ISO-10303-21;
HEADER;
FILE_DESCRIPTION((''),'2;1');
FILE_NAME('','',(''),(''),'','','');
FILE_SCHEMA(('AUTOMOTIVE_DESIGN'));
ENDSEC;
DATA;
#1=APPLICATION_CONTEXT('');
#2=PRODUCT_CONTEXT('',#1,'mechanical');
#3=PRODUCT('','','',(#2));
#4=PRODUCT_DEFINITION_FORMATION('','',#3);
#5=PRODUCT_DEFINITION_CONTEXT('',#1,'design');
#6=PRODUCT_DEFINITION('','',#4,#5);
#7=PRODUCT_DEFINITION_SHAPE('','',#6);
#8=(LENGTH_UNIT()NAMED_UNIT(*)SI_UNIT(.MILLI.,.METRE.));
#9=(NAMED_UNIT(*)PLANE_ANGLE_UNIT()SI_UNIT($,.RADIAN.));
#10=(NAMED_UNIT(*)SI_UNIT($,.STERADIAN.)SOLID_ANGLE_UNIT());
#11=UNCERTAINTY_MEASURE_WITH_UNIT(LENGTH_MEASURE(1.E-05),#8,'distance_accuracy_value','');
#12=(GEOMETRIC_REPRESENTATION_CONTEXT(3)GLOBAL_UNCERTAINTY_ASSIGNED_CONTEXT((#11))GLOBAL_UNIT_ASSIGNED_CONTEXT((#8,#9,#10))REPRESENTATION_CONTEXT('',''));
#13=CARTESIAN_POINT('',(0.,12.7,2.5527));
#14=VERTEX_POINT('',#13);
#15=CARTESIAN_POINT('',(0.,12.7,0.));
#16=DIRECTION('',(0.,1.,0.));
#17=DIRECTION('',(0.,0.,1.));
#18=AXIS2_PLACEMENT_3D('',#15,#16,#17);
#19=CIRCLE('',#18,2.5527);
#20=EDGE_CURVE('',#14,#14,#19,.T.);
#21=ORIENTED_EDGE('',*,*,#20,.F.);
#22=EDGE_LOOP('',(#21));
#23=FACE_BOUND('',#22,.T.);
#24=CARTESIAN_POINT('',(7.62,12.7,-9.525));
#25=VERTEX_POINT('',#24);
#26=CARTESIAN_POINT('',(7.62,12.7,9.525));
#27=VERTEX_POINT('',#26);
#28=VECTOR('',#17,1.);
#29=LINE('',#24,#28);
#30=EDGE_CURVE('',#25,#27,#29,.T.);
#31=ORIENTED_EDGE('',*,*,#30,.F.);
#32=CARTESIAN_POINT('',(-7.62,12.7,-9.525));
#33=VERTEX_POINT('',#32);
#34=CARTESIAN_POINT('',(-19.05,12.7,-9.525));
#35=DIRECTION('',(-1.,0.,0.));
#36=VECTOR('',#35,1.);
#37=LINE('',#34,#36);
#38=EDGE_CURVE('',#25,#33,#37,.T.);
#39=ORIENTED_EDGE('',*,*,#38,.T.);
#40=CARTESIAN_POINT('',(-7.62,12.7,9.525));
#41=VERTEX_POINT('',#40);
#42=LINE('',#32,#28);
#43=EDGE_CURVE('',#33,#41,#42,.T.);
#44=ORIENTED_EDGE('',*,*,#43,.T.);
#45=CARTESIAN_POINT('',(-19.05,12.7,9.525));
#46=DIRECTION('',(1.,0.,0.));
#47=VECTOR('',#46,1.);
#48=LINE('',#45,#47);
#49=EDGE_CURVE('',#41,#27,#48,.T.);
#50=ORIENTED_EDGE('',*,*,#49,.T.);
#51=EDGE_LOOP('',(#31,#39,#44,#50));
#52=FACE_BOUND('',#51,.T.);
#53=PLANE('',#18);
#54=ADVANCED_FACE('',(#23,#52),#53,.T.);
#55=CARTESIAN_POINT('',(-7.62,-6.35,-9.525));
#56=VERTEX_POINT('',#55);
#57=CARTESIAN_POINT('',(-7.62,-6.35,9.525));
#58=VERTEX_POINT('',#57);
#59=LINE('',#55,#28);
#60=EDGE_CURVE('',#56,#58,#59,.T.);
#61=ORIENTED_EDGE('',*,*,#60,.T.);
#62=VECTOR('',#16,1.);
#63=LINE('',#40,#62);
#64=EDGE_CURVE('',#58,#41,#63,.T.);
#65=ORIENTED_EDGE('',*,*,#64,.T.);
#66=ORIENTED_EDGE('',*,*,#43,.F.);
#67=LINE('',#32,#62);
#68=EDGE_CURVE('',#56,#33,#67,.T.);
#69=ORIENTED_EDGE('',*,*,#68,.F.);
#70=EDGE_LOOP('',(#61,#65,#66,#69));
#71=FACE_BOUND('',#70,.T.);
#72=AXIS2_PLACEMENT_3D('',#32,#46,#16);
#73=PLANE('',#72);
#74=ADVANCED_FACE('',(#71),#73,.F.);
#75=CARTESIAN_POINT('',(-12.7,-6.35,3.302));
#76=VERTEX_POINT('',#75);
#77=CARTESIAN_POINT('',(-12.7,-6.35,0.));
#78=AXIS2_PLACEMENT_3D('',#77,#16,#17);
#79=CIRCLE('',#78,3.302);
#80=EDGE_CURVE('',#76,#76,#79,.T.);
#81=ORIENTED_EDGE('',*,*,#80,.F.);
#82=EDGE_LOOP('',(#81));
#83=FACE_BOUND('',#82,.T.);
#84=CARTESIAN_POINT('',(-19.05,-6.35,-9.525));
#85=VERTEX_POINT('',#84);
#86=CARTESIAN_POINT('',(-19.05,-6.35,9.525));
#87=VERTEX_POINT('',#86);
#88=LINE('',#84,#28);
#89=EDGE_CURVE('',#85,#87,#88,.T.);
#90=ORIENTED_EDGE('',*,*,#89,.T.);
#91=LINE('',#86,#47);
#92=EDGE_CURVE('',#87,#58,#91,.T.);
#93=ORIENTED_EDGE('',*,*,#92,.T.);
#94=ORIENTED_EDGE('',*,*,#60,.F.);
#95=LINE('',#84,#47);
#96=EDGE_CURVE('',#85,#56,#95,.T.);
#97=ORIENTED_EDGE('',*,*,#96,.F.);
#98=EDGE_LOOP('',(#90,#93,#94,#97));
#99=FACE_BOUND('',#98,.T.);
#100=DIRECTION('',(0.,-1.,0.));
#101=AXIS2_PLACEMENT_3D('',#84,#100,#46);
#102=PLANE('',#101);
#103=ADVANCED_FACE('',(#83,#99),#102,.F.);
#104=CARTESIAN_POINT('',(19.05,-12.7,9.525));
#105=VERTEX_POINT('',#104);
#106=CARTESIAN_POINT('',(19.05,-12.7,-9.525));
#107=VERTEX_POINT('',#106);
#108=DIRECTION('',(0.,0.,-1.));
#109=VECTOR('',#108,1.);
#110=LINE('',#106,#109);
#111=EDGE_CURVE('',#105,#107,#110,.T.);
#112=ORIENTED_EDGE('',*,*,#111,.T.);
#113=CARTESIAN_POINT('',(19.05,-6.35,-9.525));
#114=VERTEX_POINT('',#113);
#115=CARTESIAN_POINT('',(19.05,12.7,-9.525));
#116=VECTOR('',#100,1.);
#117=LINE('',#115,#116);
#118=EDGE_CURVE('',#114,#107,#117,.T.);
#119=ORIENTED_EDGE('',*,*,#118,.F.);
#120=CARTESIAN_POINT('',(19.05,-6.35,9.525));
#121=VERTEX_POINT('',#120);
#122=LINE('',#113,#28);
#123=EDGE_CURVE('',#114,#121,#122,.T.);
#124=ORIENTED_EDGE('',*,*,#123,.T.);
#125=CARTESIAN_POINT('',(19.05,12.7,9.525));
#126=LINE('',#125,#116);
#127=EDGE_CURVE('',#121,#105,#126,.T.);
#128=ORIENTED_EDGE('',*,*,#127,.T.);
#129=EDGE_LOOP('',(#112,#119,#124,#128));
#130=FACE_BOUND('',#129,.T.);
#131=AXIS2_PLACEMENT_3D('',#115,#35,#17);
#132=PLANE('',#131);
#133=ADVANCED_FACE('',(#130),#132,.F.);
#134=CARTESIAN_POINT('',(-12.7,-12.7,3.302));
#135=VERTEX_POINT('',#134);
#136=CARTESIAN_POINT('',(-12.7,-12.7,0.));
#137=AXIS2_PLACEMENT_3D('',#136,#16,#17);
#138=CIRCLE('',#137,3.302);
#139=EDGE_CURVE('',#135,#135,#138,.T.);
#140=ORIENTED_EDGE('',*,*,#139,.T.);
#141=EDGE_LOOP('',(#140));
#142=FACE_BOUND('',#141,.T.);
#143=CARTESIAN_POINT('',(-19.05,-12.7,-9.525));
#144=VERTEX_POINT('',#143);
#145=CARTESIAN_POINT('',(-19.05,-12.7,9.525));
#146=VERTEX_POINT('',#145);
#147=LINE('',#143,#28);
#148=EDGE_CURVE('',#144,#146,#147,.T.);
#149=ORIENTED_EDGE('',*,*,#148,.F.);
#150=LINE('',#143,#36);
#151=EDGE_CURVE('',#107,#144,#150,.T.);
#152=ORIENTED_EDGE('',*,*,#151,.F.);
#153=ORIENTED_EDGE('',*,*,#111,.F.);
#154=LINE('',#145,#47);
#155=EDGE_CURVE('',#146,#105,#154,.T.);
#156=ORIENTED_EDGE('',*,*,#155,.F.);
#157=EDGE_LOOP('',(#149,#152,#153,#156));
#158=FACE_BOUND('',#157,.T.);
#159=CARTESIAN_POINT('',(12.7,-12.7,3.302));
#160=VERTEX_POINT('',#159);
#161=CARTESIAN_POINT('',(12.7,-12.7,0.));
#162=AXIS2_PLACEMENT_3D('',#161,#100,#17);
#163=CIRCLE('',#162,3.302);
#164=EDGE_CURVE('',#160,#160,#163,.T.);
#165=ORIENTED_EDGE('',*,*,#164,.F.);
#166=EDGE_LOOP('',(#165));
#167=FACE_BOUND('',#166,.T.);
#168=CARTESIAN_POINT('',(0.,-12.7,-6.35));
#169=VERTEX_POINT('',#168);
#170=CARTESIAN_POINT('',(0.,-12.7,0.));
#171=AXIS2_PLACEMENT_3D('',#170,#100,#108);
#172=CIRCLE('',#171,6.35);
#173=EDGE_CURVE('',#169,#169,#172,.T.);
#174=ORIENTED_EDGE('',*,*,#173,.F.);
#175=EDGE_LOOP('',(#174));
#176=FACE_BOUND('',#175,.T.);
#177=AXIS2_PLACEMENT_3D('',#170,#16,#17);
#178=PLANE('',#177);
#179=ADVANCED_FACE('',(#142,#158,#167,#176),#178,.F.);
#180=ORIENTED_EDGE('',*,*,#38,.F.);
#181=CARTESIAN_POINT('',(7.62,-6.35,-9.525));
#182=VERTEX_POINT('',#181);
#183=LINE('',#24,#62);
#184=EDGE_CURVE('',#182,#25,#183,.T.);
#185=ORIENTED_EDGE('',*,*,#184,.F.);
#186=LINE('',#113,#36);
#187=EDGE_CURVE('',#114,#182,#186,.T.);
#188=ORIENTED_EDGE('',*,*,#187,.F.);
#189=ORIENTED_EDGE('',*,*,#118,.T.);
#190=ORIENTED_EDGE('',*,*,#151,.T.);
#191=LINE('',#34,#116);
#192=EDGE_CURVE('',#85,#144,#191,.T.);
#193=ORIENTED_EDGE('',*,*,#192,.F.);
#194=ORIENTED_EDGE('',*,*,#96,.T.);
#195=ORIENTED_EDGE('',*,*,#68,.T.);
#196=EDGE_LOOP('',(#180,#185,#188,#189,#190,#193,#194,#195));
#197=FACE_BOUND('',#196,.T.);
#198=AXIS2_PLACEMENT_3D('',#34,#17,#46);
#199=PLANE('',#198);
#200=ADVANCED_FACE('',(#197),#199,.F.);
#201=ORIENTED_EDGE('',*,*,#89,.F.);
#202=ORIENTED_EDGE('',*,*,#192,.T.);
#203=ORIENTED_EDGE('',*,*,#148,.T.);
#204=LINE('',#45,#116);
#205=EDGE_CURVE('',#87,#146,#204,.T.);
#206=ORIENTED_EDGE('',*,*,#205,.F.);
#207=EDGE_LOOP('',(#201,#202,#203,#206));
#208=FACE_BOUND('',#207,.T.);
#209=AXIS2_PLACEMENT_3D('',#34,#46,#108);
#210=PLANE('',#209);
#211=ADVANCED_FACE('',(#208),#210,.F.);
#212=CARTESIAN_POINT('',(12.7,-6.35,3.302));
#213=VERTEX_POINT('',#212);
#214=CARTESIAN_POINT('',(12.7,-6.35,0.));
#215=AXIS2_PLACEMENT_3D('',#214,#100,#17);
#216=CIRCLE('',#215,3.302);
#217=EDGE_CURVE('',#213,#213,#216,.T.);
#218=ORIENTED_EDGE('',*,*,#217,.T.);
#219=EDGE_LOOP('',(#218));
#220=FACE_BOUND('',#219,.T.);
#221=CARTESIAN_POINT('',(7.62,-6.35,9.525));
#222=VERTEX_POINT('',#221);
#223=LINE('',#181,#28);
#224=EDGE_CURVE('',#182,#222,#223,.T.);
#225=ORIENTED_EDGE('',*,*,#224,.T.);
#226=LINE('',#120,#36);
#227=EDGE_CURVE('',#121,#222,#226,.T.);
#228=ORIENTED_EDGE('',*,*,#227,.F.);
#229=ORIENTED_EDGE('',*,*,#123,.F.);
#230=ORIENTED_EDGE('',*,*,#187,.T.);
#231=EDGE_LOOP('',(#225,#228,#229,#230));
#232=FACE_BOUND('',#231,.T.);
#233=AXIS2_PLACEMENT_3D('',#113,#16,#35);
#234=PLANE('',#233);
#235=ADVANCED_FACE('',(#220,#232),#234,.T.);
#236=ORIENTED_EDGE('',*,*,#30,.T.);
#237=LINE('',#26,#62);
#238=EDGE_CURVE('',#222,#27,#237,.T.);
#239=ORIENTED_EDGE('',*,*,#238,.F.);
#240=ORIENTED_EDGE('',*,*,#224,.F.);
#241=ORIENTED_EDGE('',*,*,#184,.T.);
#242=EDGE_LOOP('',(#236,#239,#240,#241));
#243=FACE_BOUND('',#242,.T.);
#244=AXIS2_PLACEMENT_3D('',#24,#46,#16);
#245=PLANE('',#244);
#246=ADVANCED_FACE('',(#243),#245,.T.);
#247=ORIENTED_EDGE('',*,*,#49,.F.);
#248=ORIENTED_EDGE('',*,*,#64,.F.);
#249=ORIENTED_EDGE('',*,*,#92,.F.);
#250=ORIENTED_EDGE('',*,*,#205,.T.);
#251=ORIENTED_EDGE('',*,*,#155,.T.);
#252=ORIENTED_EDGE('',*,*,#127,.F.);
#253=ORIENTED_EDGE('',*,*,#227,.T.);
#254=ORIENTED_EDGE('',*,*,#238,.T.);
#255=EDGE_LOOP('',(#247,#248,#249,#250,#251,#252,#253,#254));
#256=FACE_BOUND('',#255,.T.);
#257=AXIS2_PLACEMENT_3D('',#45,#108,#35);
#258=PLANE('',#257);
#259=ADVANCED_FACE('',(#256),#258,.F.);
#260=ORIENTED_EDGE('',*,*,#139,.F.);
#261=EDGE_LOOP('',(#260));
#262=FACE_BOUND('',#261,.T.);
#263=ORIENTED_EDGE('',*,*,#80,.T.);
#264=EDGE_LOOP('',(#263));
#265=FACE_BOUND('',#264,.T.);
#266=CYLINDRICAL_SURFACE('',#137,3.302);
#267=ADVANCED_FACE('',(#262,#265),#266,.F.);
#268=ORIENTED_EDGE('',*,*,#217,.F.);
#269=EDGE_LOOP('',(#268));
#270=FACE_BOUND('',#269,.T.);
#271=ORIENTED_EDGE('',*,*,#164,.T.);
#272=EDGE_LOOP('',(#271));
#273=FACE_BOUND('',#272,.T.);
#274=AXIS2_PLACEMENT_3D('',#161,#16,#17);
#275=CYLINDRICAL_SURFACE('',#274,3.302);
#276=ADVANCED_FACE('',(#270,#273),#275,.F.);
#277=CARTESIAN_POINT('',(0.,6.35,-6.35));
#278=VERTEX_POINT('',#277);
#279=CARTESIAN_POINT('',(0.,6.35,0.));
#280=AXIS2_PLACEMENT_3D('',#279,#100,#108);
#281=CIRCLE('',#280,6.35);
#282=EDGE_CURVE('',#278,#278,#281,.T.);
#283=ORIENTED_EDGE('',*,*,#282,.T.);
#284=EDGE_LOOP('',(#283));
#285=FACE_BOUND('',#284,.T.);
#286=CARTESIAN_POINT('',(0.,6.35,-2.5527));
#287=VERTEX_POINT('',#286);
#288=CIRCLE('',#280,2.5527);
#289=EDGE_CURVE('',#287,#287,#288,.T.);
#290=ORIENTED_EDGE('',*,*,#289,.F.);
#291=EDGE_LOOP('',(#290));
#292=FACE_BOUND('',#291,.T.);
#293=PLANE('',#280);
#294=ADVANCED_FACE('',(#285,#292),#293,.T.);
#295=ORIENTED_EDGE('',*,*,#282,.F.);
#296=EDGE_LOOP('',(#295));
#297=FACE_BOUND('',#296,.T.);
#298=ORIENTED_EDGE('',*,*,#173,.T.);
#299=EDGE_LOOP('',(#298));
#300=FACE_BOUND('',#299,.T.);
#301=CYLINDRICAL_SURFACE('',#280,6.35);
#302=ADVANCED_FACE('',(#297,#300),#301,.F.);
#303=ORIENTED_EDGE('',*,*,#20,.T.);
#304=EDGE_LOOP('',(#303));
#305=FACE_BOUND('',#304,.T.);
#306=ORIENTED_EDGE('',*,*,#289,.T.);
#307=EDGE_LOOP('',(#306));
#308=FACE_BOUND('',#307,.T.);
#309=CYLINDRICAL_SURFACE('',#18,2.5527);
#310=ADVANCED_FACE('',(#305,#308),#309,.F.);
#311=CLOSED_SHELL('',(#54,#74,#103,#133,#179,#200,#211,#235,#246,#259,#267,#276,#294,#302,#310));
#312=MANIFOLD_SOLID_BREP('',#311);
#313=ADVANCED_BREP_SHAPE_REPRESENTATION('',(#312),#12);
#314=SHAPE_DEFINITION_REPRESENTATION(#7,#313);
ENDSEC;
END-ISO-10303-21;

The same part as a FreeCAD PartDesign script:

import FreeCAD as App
import Part
import Sketcher
Q = App.Units.Quantity

doc = App.newDocument("Part")
params = doc.addObject("Spreadsheet::Sheet", "Params")
for row, (alias, value) in enumerate([
    ("sketch1_width", "1.5 in"),
    ("sketch1_height", "0.75 in"),
    ("pad1_length", "1 in"),
    ("sketch2_width", "0.45 in"),
    ("sketch2_height", "0.75 in"),
    ("sketch3_diameter", "0.26 in"),
    ("sketch4_diameter", "0.5 in"),
    ("pocket3_length", "0.75 in"),
    ("sketch5_diameter", "0.201 in"),
    ("hole_diameter", "0.201 in"),
], start=1):
    params.set(f"A{row}", alias)
    params.set(f"B{row}", "=" + value)
    params.setAlias(f"B{row}", alias)

body = doc.addObject("PartDesign::Body", "Body")

# Sketch on XZ plane
sketch1 = doc.addObject("Sketcher::SketchObject", "Sketch")
body.addObject(sketch1)
sketch1.AttachmentSupport = (doc.XZ_Plane, [""])
sketch1.MapMode = "FlatFace"
sketch1.addGeometry([
    Part.LineSegment(App.Vector(-19, -10, 0), App.Vector(-19, 10, 0)),
    Part.LineSegment(App.Vector(-19, 10, 0), App.Vector(19, 10, 0)),
    Part.LineSegment(App.Vector(19, 10, 0), App.Vector(19, -10, 0)),
    Part.LineSegment(App.Vector(19, -10, 0), App.Vector(-19, -10, 0)),
], False)
sketch1.addConstraint([
    Sketcher.Constraint("Coincident", 0, 2, 1, 1),
    Sketcher.Constraint("Coincident", 1, 2, 2, 1),
    Sketcher.Constraint("Coincident", 2, 2, 3, 1),
    Sketcher.Constraint("Coincident", 3, 2, 0, 1),
    Sketcher.Constraint("Vertical", 0),
    Sketcher.Constraint("Horizontal", 1),
    Sketcher.Constraint("Vertical", 2),
    Sketcher.Constraint("Horizontal", 3),
    Sketcher.Constraint("Symmetric", 0, 2, 2, 2, -1, 1),
    Sketcher.Constraint("DistanceX", 1, 1, 1, 2, Q("1.5 in")),
    Sketcher.Constraint("DistanceY", 0, 1, 0, 2, Q("0.75 in")),
])
sketch1.setExpression("Constraints[9]", "Params.sketch1_width")
sketch1.setExpression("Constraints[10]", "Params.sketch1_height")
pad1 = doc.addObject("PartDesign::Pad", "Pad")
body.addObject(pad1)
pad1.Profile = sketch1
pad1.setExpression("Length", "Params.pad1_length")
pad1.Midplane = True

# Sketch on XY plane
sketch2 = doc.addObject("Sketcher::SketchObject", "Sketch001")
body.addObject(sketch2)
sketch2.AttachmentSupport = (doc.XY_Plane, [""])
sketch2.MapMode = "FlatFace"
sketch2.AttachmentOffset = App.Placement(App.Vector(0, 0, 0.375 * 25.4), App.Rotation())
sketch2.addGeometry([
    Part.LineSegment(App.Vector(-19, 13, 0), App.Vector(-19, -6, 0)),
    Part.LineSegment(App.Vector(-19, -6, 0), App.Vector(-8, -6, 0)),
    Part.LineSegment(App.Vector(-8, -6, 0), App.Vector(-8, 13, 0)),
    Part.LineSegment(App.Vector(-8, 13, 0), App.Vector(-19, 13, 0)),
], False)
sketch2.addConstraint([
    Sketcher.Constraint("Coincident", 0, 2, 1, 1),
    Sketcher.Constraint("Coincident", 1, 2, 2, 1),
    Sketcher.Constraint("Coincident", 2, 2, 3, 1),
    Sketcher.Constraint("Coincident", 3, 2, 0, 1),
    Sketcher.Constraint("Vertical", 0),
    Sketcher.Constraint("Horizontal", 1),
    Sketcher.Constraint("Vertical", 2),
    Sketcher.Constraint("Horizontal", 3),
    Sketcher.Constraint("DistanceX", 1, 1, 1, 2, Q("0.45 in")),
    Sketcher.Constraint("DistanceY", 0, 2, 0, 1, Q("0.75 in")),
    Sketcher.Constraint("DistanceX", 1, 2, -1, 1, Q("0.3 in")),
    Sketcher.Constraint("DistanceY", -1, 1, 2, 2, Q("0.5 in")),
])
sketch2.setExpression("Constraints[8]", "Params.sketch2_width")
sketch2.setExpression("Constraints[9]", "Params.sketch2_height")
pocket1 = doc.addObject("PartDesign::Pocket", "Pocket")
body.addObject(pocket1)
pocket1.Profile = sketch2
pocket1.Type = "ThroughAll"

# Sketch on XZ plane
sketch3 = doc.addObject("Sketcher::SketchObject", "Sketch002")
body.addObject(sketch3)
sketch3.AttachmentSupport = (doc.XZ_Plane, [""])
sketch3.MapMode = "FlatFace"
sketch3.AttachmentOffset = App.Placement(App.Vector(0, 0, 0.25 * 25.4), App.Rotation())
sketch3.addGeometry(Part.Circle(App.Vector(-12.7, 0, 0), App.Vector(0, 0, 1), 3.3), False)
sketch3.addConstraint([
    Sketcher.Constraint("PointOnObject", 0, 3, -1),
    Sketcher.Constraint("Diameter", 0, Q("0.26 in")),
    Sketcher.Constraint("DistanceX", 0, 3, -1, 1, Q("0.5 in")),
])
sketch3.setExpression("Constraints[1]", "Params.sketch3_diameter")
pocket2 = doc.addObject("PartDesign::Pocket", "Pocket001")
body.addObject(pocket2)
pocket2.Profile = sketch3
pocket2.Type = "ThroughAll"
pocket2.Reversed = True
doc.recompute()

mirrored = doc.addObject("PartDesign::Mirrored", "Mirrored")
body.addObject(mirrored)
mirrored.Originals = [pocket1, pocket2]
mirrored.MirrorPlane = (doc.YZ_Plane, [""])
body.Tip = mirrored

# Sketch on XZ plane
sketch4 = doc.addObject("Sketcher::SketchObject", "Sketch003")
body.addObject(sketch4)
sketch4.AttachmentSupport = (doc.XZ_Plane, [""])
sketch4.MapMode = "FlatFace"
sketch4.AttachmentOffset = App.Placement(App.Vector(0, 0, 0.5 * 25.4), App.Rotation())
sketch4.addGeometry(Part.Circle(App.Vector(0, 0, 0), App.Vector(0, 0, 1), 6), False)
sketch4.addConstraint([
    Sketcher.Constraint("Coincident", 0, 3, -1, 1),
    Sketcher.Constraint("Diameter", 0, Q("0.5 in")),
])
sketch4.setExpression("Constraints[1]", "Params.sketch4_diameter")
pocket3 = doc.addObject("PartDesign::Pocket", "Pocket002")
body.addObject(pocket3)
pocket3.Profile = sketch4
pocket3.setExpression("Length", "Params.pocket3_length")

# Sketch on XZ plane
sketch5 = doc.addObject("Sketcher::SketchObject", "Sketch004")
body.addObject(sketch5)
sketch5.AttachmentSupport = (doc.XZ_Plane, [""])
sketch5.MapMode = "FlatFace"
sketch5.AttachmentOffset = App.Placement(App.Vector(0, 0, -0.5 * 25.4), App.Rotation())
sketch5.addGeometry(Part.Circle(App.Vector(0, 0, 0), App.Vector(0, 0, 1), 2.6), False)
sketch5.addConstraint([
    Sketcher.Constraint("Coincident", 0, 3, -1, 1),
    Sketcher.Constraint("Diameter", 0, Q("0.201 in")),
])
sketch5.setExpression("Constraints[1]", "Params.sketch5_diameter")
doc.recompute()
hole = doc.addObject("PartDesign::Hole", "Hole")
body.addObject(hole)
hole.Profile = sketch5
hole.ThreadType = "None"
hole.setExpression("Diameter", "Params.hole_diameter")
hole.DepthType = "ThroughAll"
hole.Reversed = True

doc.recompute()
